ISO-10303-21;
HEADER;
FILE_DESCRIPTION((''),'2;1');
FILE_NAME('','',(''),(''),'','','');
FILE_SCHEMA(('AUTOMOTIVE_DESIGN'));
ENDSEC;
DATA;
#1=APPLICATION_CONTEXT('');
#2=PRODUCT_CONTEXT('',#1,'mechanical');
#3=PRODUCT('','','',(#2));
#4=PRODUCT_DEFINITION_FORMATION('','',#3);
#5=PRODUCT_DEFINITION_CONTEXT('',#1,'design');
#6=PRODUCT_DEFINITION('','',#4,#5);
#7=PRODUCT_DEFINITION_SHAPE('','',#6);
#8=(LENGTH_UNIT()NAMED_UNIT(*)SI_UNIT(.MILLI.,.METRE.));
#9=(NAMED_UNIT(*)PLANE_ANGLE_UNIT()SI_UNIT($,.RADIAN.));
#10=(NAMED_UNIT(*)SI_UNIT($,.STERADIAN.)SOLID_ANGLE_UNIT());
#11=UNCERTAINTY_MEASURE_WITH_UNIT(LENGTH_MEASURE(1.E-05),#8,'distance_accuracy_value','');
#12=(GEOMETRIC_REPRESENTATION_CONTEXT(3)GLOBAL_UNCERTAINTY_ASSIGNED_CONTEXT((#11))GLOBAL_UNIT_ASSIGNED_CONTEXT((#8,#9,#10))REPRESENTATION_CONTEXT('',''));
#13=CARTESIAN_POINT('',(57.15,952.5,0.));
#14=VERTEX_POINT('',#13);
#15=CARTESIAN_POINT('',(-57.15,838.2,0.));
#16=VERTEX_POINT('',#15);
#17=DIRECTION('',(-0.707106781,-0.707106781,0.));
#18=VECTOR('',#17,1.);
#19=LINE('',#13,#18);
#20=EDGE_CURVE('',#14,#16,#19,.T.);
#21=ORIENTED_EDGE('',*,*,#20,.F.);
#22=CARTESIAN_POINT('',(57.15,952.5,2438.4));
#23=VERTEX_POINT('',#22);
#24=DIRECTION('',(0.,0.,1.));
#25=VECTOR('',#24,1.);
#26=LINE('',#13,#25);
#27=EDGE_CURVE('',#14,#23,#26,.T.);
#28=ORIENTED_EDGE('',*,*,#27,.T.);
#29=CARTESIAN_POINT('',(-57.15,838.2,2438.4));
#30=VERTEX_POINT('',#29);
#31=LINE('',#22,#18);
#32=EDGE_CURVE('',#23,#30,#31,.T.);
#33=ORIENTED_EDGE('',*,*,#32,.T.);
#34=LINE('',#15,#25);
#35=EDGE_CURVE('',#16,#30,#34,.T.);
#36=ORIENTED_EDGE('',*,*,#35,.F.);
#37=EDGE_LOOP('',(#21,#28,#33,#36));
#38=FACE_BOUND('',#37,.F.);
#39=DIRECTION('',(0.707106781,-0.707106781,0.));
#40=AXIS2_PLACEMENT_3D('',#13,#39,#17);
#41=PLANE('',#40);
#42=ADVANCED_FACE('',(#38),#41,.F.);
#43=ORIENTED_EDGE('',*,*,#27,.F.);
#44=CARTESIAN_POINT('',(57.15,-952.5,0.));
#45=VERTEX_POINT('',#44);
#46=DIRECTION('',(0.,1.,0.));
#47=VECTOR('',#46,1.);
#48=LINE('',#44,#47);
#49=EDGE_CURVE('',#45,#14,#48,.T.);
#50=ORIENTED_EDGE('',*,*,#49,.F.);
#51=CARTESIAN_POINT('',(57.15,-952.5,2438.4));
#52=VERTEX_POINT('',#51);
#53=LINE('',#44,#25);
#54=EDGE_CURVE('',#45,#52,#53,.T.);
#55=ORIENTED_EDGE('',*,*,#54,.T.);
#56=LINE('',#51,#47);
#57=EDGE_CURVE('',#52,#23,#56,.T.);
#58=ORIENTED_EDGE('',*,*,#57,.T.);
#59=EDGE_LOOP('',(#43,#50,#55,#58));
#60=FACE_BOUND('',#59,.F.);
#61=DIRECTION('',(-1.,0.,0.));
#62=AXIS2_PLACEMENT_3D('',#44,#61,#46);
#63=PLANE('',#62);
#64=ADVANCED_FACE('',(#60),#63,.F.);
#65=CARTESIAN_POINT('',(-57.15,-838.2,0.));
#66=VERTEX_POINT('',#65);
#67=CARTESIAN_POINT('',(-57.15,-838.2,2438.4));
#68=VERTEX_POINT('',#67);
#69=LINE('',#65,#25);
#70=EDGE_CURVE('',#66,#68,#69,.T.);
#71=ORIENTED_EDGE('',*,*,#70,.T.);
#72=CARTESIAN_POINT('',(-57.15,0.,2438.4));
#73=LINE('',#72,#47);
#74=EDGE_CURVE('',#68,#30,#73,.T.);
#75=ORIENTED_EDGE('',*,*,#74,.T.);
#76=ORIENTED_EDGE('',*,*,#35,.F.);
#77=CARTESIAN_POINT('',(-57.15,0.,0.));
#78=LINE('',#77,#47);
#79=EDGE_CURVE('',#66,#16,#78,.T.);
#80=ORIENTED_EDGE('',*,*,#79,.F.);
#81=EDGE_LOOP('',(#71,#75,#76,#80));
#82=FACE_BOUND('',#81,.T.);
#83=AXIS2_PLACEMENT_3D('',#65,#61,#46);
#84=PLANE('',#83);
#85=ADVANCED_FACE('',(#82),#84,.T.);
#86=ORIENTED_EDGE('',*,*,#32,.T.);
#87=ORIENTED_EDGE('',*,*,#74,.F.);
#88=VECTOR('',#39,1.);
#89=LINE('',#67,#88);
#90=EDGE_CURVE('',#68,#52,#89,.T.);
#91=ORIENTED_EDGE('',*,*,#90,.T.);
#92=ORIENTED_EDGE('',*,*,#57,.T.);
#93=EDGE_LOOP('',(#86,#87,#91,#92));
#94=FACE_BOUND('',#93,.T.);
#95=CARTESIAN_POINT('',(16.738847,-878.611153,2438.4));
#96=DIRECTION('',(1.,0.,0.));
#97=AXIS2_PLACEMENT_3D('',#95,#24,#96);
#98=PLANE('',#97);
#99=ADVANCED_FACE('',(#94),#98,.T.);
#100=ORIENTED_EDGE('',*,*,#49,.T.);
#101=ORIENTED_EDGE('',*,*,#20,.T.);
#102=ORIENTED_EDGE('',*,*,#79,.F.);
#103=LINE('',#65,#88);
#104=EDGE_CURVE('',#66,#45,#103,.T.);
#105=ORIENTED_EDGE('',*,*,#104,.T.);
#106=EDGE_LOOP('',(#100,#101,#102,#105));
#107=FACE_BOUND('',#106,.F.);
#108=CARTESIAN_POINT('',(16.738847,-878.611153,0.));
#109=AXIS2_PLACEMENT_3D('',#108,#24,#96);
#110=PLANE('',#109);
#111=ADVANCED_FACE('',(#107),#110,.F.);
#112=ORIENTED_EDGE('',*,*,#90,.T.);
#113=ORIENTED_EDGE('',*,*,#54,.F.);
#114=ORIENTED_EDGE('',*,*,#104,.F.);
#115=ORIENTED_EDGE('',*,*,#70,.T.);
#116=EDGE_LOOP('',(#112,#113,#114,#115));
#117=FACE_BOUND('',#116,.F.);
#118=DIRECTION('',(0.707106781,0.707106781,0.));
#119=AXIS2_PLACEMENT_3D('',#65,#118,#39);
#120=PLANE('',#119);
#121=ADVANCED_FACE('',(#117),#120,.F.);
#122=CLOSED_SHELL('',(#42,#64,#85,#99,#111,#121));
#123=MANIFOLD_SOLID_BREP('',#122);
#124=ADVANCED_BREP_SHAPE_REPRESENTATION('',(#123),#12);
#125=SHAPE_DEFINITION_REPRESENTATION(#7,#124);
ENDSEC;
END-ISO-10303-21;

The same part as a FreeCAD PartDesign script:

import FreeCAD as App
import Part
import Sketcher
from FreeCAD import Vector
Q = App.Units.Quantity


def add_polygon(sketch, points):
    """Adds a closed chain of lines whose ends are joined by coincident constraints."""
    first, n = sketch.GeometryCount, len(points)
    for a, b in zip(points, points[1:] + points[:1]):
        sketch.addGeometry(Part.LineSegment(App.Vector(*a, 0), App.Vector(*b, 0)), False)
    for i in range(n):
        sketch.addConstraint(Sketcher.Constraint("Coincident", first + i, 2, first + (i + 1) % n, 1))

doc = App.newDocument("Part")
params = doc.addObject("Spreadsheet::Sheet", "Params")
for row, (alias, value) in enumerate([
    ("sketch1_height", "75 in"),
    ("sketch1_height2", "66 in"),
    ("pad1_length", "96 in"),
], start=1):
    params.set(f"A{row}", alias)
    params.set(f"B{row}", "=" + value)
    params.setAlias(f"B{row}", alias)

body = doc.addObject("PartDesign::Body", "Body")

# Sketch on XY plane
sketch1 = body.newObject("Sketcher::SketchObject", "Sketch")
sketch1.AttachmentSupport = (doc.getObject("XY_Plane"), [""])
sketch1.MapMode = "FlatFace"
add_polygon(sketch1, [(57, -952), (57, 952), (-57, 838), (-57, -838)])  # lines 0-3
sketch1.addConstraint(Sketcher.Constraint("Vertical", 0))
sketch1.addConstraint(Sketcher.Constraint("Vertical", 2))
sketch1.addConstraint(Sketcher.Constraint("Perpendicular", 1, 3))
sketch1.addConstraint(Sketcher.Constraint("Equal", 1, 3))
sketch1.addConstraint(Sketcher.Constraint("DistanceY", 0, 1, 0, 2, Q("75 in")))
sketch1.addConstraint(Sketcher.Constraint("DistanceY", 2, 2, 2, 1, Q("66 in")))
sketch1.addConstraint(Sketcher.Constraint("DistanceY", -1, 1, 1, 2, Q("33 in")))
sketch1.addConstraint(Sketcher.Constraint("DistanceX", -1, 1, 0, 2, Q("2.25 in")))
sketch1.setExpression("Constraints[8]", "Params.sketch1_height")
sketch1.setExpression("Constraints[9]", "Params.sketch1_height2")
pad1 = body.newObject("PartDesign::Pad", "Pad")
pad1.Profile = sketch1
pad1.setExpression("Length", "Params.pad1_length")

doc.recompute()
